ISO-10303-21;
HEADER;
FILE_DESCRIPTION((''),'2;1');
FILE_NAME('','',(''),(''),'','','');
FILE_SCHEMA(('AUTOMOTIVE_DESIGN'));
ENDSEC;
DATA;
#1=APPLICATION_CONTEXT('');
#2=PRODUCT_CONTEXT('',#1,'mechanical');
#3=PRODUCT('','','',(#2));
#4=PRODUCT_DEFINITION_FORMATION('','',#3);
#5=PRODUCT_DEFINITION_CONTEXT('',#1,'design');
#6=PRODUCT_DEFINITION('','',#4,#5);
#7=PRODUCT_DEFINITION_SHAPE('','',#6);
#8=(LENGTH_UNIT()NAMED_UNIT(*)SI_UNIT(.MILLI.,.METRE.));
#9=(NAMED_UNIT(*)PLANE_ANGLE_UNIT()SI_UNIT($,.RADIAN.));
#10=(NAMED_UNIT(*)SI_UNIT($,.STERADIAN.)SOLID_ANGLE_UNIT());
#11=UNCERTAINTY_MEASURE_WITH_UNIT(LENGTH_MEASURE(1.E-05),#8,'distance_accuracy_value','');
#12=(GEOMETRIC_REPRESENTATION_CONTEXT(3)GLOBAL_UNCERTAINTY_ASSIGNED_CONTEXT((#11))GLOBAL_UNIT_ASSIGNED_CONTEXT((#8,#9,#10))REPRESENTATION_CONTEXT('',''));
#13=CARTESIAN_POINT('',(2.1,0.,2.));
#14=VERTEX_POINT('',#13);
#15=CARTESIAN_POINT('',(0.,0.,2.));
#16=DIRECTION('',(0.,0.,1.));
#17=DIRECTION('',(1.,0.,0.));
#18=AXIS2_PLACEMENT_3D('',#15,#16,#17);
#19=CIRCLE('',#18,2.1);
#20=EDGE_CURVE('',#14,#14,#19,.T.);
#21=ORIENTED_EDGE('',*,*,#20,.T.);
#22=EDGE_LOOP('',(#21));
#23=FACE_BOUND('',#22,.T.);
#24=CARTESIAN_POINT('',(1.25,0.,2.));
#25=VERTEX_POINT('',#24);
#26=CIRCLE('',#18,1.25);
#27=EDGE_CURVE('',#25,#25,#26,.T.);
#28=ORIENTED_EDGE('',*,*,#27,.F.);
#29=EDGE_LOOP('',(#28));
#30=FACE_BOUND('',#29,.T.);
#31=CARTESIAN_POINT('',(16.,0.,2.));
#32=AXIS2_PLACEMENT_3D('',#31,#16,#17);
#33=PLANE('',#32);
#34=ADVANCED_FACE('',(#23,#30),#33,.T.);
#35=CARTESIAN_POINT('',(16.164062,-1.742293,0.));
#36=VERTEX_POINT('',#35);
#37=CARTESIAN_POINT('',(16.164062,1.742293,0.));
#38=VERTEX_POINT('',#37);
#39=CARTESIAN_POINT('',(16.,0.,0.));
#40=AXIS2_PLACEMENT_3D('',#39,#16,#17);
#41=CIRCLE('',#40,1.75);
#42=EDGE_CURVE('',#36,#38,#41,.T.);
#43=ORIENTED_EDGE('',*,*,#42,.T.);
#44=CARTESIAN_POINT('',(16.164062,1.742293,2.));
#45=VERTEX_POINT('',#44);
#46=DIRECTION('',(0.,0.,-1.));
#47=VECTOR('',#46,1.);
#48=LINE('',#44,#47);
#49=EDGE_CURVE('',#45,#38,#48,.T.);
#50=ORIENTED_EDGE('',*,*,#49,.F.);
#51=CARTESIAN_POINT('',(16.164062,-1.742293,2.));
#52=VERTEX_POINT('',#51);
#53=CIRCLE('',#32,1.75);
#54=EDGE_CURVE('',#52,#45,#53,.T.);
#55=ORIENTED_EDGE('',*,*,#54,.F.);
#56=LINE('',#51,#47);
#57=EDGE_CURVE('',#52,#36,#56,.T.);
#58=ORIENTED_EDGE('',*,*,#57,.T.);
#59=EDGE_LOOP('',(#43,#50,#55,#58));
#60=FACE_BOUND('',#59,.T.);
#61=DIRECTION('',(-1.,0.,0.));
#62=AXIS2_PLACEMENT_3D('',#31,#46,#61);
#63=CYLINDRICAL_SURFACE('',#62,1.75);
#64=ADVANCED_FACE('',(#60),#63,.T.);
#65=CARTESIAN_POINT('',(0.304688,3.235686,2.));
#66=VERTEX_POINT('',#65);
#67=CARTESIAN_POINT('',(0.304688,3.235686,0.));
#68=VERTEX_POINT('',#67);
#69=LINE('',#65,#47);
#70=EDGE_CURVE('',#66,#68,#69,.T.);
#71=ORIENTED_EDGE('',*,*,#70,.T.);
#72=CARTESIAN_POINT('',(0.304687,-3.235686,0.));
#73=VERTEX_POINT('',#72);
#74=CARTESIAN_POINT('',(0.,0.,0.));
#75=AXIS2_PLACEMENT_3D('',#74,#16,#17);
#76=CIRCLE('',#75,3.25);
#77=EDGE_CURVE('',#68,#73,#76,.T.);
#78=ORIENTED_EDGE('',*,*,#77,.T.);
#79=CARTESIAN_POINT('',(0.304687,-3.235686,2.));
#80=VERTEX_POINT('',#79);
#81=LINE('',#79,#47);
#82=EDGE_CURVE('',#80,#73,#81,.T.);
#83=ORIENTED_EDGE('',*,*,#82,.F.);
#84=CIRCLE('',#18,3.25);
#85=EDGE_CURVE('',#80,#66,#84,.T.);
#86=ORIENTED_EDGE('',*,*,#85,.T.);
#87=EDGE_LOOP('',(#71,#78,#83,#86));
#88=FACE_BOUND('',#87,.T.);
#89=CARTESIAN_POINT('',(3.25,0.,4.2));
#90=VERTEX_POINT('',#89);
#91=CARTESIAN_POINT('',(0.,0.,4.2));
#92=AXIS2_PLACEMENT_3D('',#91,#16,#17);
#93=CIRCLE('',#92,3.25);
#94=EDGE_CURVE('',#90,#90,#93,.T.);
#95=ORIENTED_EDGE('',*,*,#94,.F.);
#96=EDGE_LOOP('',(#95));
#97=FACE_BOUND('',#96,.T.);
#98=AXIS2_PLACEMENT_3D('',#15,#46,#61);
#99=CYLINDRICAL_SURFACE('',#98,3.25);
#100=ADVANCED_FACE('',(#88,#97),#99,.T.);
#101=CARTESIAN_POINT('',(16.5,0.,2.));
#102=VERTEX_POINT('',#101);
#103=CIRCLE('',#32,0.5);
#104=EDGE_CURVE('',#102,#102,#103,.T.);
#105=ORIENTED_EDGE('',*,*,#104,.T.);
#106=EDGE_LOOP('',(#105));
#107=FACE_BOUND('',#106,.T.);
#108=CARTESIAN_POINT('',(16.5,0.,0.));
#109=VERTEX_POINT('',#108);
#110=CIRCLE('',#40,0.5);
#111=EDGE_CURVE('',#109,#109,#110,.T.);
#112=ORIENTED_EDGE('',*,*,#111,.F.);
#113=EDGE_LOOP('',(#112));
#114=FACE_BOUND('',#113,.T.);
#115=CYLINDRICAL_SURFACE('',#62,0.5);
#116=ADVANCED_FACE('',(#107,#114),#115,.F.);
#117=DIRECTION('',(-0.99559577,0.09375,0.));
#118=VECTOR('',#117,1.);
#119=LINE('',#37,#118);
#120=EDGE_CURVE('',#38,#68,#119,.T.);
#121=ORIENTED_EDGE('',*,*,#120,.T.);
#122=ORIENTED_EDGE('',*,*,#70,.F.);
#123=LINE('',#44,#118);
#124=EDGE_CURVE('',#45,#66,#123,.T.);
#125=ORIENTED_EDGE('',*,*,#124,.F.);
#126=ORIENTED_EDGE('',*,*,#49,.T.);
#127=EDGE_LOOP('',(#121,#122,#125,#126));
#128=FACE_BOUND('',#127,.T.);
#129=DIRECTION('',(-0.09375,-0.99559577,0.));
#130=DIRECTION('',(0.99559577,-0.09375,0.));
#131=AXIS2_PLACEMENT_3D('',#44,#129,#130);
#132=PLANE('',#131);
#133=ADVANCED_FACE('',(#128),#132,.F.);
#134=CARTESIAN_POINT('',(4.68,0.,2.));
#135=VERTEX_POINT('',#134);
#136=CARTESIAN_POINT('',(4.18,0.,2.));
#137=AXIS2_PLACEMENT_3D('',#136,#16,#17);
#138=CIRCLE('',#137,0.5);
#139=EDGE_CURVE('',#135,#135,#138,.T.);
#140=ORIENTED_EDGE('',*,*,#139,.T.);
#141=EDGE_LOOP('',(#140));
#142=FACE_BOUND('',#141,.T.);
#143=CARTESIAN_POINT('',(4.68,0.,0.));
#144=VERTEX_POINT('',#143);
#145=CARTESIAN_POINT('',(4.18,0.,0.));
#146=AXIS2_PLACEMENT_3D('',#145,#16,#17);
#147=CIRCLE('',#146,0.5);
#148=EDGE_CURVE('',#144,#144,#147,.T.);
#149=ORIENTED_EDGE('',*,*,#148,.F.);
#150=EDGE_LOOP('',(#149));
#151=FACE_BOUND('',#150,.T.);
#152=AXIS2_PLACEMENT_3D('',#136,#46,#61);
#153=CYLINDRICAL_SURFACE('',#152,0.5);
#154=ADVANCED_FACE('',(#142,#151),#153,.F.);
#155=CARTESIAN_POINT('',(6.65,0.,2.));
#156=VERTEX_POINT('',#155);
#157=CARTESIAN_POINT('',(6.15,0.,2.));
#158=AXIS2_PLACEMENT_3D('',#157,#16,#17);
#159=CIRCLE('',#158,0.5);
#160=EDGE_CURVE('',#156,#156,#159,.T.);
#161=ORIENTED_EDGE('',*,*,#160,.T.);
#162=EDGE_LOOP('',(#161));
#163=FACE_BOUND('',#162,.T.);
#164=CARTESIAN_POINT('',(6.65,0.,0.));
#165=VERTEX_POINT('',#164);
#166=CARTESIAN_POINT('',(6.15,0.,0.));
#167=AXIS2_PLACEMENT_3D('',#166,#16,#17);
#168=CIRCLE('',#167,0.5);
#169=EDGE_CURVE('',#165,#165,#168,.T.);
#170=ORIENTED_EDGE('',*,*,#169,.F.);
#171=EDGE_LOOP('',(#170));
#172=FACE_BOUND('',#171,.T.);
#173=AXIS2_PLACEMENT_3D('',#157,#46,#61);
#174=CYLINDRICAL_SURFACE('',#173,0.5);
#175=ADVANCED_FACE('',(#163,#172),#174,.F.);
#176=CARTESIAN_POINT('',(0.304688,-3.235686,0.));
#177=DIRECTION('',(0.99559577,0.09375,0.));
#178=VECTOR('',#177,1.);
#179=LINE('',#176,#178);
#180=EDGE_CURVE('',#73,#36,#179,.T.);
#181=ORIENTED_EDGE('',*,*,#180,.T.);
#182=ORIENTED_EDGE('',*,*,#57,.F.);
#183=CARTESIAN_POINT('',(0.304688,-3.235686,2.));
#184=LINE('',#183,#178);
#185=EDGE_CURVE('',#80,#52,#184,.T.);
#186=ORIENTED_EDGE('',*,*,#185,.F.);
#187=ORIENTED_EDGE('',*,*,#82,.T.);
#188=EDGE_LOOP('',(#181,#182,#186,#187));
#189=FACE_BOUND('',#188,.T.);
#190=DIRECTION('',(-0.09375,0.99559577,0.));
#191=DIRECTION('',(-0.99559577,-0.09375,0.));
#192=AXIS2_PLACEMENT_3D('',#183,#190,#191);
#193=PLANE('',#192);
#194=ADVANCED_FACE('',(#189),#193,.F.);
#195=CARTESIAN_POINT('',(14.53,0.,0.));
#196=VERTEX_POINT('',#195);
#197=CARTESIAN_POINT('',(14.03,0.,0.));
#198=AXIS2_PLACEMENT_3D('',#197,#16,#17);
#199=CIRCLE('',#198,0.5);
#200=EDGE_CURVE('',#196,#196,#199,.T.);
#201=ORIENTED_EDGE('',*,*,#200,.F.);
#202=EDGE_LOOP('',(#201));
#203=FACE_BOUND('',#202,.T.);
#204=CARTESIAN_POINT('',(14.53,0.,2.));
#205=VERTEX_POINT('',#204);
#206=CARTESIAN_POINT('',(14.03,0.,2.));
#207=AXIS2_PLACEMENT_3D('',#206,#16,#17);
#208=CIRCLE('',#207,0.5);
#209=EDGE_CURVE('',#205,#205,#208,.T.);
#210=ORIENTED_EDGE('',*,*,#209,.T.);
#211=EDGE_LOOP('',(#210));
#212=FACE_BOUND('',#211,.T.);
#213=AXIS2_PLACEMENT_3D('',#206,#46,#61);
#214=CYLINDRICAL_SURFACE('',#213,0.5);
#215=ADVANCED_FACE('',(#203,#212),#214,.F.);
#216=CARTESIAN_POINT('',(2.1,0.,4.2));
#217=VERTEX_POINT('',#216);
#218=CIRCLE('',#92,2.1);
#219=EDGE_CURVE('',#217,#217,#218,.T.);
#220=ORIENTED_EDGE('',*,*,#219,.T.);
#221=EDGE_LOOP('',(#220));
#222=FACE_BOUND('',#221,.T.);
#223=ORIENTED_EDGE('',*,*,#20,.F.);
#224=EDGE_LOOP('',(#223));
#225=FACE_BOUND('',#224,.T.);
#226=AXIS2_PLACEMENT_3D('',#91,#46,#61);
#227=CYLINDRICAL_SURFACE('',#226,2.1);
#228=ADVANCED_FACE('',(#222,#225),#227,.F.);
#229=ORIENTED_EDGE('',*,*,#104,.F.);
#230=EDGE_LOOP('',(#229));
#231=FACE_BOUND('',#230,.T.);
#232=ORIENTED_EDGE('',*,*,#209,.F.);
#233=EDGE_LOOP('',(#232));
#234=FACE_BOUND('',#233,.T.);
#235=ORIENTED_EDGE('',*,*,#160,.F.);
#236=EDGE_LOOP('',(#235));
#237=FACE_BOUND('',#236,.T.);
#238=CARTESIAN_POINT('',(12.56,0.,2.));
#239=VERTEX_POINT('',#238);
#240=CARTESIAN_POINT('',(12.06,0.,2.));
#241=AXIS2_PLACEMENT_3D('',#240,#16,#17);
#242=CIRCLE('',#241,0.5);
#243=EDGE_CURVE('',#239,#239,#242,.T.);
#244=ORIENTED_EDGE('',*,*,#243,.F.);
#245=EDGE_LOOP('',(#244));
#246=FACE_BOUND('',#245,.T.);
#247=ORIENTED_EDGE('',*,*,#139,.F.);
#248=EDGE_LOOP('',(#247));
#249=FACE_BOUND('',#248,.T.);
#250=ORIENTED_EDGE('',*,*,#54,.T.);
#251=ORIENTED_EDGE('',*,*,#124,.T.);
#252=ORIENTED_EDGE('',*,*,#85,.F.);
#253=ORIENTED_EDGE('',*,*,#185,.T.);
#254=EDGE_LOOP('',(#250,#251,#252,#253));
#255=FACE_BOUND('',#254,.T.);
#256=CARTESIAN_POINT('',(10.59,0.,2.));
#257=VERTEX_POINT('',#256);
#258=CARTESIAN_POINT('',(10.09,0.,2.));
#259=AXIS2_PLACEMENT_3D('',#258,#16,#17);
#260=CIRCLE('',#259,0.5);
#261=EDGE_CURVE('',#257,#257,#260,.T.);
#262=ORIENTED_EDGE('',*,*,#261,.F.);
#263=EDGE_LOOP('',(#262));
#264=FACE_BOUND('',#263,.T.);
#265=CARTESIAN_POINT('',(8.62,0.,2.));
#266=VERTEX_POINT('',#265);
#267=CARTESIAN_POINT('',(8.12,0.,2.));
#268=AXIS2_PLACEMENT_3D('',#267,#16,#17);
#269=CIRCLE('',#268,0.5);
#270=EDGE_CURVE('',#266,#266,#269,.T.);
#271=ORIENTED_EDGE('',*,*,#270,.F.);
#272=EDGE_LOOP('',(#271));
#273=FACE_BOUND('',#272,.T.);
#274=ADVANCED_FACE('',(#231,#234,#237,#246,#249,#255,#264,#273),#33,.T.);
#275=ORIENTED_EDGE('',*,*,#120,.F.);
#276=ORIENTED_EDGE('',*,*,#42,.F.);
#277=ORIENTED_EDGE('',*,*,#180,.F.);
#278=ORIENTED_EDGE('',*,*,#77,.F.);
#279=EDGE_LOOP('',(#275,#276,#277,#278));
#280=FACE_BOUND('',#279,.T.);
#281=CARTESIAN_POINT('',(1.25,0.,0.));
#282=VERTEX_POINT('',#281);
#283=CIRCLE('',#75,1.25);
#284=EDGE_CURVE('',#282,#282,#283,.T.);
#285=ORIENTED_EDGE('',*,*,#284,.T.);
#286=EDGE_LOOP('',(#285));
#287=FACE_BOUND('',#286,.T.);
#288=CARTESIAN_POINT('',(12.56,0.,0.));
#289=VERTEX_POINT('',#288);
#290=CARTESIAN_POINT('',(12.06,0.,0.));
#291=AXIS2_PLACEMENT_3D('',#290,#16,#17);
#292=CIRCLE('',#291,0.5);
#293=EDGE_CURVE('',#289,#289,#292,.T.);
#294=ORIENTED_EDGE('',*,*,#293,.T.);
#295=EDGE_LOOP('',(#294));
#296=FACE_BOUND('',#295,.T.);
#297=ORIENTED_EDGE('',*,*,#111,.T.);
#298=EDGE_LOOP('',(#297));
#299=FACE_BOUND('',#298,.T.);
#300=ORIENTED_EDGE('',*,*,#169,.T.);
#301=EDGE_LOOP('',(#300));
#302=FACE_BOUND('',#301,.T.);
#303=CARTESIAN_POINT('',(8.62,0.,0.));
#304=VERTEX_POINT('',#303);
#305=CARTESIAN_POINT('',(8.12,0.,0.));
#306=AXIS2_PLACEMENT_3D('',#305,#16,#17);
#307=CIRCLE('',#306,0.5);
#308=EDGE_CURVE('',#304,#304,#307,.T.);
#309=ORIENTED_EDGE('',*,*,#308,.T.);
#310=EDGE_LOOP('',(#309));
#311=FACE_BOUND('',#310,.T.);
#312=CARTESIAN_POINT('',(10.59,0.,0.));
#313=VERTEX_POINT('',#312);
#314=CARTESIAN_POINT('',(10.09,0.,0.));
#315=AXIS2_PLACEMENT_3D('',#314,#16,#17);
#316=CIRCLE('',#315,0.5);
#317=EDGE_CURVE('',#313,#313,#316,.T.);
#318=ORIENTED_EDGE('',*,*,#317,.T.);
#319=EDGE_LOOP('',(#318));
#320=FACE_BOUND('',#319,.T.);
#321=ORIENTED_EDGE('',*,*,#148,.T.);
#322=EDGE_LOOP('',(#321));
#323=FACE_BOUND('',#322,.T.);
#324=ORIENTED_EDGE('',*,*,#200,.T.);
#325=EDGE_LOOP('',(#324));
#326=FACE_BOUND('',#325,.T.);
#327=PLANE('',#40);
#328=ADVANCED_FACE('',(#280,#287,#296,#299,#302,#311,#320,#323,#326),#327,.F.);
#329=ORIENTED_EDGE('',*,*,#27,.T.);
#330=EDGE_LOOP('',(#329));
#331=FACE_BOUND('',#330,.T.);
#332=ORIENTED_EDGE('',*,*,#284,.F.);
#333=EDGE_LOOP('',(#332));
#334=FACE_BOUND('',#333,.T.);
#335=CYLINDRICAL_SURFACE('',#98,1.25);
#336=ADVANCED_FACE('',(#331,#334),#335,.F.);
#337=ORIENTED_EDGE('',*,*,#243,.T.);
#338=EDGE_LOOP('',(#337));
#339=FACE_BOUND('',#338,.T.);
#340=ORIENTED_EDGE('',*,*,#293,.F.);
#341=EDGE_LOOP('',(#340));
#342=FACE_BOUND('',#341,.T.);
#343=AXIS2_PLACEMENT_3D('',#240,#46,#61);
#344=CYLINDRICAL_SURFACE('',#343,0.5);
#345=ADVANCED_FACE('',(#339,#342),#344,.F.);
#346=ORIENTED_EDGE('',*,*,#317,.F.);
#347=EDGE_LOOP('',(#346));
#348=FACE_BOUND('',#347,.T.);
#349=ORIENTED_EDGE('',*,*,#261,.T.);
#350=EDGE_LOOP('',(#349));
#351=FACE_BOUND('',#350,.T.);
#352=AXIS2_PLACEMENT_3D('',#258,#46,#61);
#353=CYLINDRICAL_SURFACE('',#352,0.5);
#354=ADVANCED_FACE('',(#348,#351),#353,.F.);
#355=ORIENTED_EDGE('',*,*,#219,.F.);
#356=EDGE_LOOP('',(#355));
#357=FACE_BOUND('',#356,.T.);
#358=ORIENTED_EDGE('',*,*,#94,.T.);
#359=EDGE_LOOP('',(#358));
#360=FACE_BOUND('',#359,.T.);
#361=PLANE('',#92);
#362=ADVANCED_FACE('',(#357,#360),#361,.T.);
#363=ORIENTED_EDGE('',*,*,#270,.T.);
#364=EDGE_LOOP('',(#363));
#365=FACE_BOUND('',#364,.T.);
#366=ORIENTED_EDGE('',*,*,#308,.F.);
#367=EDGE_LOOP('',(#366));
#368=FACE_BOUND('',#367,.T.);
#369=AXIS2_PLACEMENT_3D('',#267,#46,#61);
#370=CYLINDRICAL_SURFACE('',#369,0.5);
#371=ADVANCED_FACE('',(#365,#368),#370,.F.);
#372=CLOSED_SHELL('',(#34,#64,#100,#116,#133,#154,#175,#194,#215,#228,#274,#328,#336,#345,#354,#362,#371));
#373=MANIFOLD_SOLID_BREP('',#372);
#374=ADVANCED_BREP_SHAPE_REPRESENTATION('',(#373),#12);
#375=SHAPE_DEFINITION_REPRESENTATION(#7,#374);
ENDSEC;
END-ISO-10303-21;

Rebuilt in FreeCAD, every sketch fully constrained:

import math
import FreeCAD as App
import Part
import Sketcher

doc = App.newDocument("Part")
body = doc.addObject("PartDesign::Body", "Body")

sketch1 = doc.addObject("Sketcher::SketchObject", "Sketch")
body.addObject(sketch1)
sketch1.AttachmentSupport = (doc.XY_Plane, [""])
sketch1.MapMode = "FlatFace"
sketch1.addGeometry(Part.LineSegment(App.Vector(16.2, 1.7, 0), App.Vector(0.3, 3.2, 0)), False)
sketch1.addGeometry(Part.ArcOfCircle(Part.Circle(App.Vector(0, 0, 0), App.Vector(0, 0, 1), 3.2), math.radians(85), math.radians(275)), False)
sketch1.addGeometry(Part.LineSegment(App.Vector(0.3, -3.2, 0), App.Vector(16.2, -1.7, 0)), False)
sketch1.addGeometry(Part.ArcOfCircle(Part.Circle(App.Vector(16, 0, 0), App.Vector(0, 0, 1), 1.8), math.radians(-85), math.radians(85)), False)
sketch1.addGeometry(Part.Circle(App.Vector(0, 0, 0), App.Vector(0, 0, 1), 1.2), False)
sketch1.addGeometry(Part.Circle(App.Vector(4.2, 0, 0), App.Vector(0, 0, 1), 0.5), False)
sketch1.addGeometry(Part.Circle(App.Vector(6.2, 0, 0), App.Vector(0, 0, 1), 0.5), False)
sketch1.addGeometry(Part.Circle(App.Vector(8.1, 0, 0), App.Vector(0, 0, 1), 0.5), False)
sketch1.addGeometry(Part.Circle(App.Vector(10.1, 0, 0), App.Vector(0, 0, 1), 0.5), False)
sketch1.addGeometry(Part.Circle(App.Vector(12.1, 0, 0), App.Vector(0, 0, 1), 0.5), False)
sketch1.addGeometry(Part.Circle(App.Vector(14, 0, 0), App.Vector(0, 0, 1), 0.5), False)
sketch1.addGeometry(Part.Circle(App.Vector(16, 0, 0), App.Vector(0, 0, 1), 0.5), False)
sketch1.addConstraint(Sketcher.Constraint("Tangent", 0, 2, 1, 1))
sketch1.addConstraint(Sketcher.Constraint("Tangent", 1, 2, 2, 1))
sketch1.addConstraint(Sketcher.Constraint("Tangent", 2, 2, 3, 1))
sketch1.addConstraint(Sketcher.Constraint("Tangent", 3, 2, 0, 1))
sketch1.addConstraint(Sketcher.Constraint("Coincident", 1, 3, -1, 1))
sketch1.addConstraint(Sketcher.Constraint("Coincident", 4, 3, -1, 1))
sketch1.addConstraint(Sketcher.Constraint("Coincident", 11, 3, 3, 3))
sketch1.addConstraint(Sketcher.Constraint("Equal", 5, 6))
sketch1.addConstraint(Sketcher.Constraint("Equal", 6, 7))
sketch1.addConstraint(Sketcher.Constraint("Equal", 7, 8))
sketch1.addConstraint(Sketcher.Constraint("Equal", 8, 9))
sketch1.addConstraint(Sketcher.Constraint("Equal", 9, 10))
sketch1.addConstraint(Sketcher.Constraint("Equal", 10, 11))
sketch1.addConstraint(Sketcher.Constraint("PointOnObject", 3, 3, -1))
sketch1.addConstraint(Sketcher.Constraint("PointOnObject", 5, 3, -1))
sketch1.addConstraint(Sketcher.Constraint("PointOnObject", 6, 3, -1))
sketch1.addConstraint(Sketcher.Constraint("PointOnObject", 7, 3, -1))
sketch1.addConstraint(Sketcher.Constraint("PointOnObject", 8, 3, -1))
sketch1.addConstraint(Sketcher.Constraint("PointOnObject", 9, 3, -1))
sketch1.addConstraint(Sketcher.Constraint("PointOnObject", 10, 3, -1))
sketch1.addConstraint(Sketcher.Constraint("Diameter", 5, 1.0))
sketch1.addConstraint(Sketcher.Constraint("Diameter", 4, 2.5))
sketch1.addConstraint(Sketcher.Constraint("Radius", 1, 3.25))
sketch1.addConstraint(Sketcher.Constraint("Radius", 3, 1.75))
sketch1.addConstraint(Sketcher.Constraint("DistanceX", -1, 1, 3, 3, 16.0))
sketch1.addConstraint(Sketcher.Constraint("DistanceX", -1, 1, 5, 3, 4.18))
sketch1.addConstraint(Sketcher.Constraint("DistanceX", -1, 1, 6, 3, 6.15))
sketch1.addConstraint(Sketcher.Constraint("DistanceX", -1, 1, 7, 3, 8.12))
sketch1.addConstraint(Sketcher.Constraint("DistanceX", -1, 1, 8, 3, 10.09))
sketch1.addConstraint(Sketcher.Constraint("DistanceX", -1, 1, 9, 3, 12.06))
sketch1.addConstraint(Sketcher.Constraint("DistanceX", -1, 1, 10, 3, 14.03))
pad1 = doc.addObject("PartDesign::Pad", "Pad")
body.addObject(pad1)
pad1.Profile = sketch1
pad1.Length = 2

sketch2 = doc.addObject("Sketcher::SketchObject", "Sketch001")
body.addObject(sketch2)
sketch2.AttachmentSupport = (doc.XY_Plane, [""])
sketch2.MapMode = "FlatFace"
sketch2.AttachmentOffset = App.Placement(App.Vector(0, 0, 2), App.Rotation())
sketch2.addGeometry(Part.Circle(App.Vector(0, 0, 0), App.Vector(0, 0, 1), 3.2), False)
sketch2.addGeometry(Part.Circle(App.Vector(0, 0, 0), App.Vector(0, 0, 1), 2.1), False)
sketch2.addConstraint(Sketcher.Constraint("Coincident", 0, 3, -1, 1))
sketch2.addConstraint(Sketcher.Constraint("Coincident", 1, 3, -1, 1))
sketch2.addConstraint(Sketcher.Constraint("Diameter", 0, 6.5))
sketch2.addConstraint(Sketcher.Constraint("Diameter", 1, 4.2))
pad2 = doc.addObject("PartDesign::Pad", "Pad001")
body.addObject(pad2)
pad2.Profile = sketch2
pad2.Length = 2.2

doc.recompute()
